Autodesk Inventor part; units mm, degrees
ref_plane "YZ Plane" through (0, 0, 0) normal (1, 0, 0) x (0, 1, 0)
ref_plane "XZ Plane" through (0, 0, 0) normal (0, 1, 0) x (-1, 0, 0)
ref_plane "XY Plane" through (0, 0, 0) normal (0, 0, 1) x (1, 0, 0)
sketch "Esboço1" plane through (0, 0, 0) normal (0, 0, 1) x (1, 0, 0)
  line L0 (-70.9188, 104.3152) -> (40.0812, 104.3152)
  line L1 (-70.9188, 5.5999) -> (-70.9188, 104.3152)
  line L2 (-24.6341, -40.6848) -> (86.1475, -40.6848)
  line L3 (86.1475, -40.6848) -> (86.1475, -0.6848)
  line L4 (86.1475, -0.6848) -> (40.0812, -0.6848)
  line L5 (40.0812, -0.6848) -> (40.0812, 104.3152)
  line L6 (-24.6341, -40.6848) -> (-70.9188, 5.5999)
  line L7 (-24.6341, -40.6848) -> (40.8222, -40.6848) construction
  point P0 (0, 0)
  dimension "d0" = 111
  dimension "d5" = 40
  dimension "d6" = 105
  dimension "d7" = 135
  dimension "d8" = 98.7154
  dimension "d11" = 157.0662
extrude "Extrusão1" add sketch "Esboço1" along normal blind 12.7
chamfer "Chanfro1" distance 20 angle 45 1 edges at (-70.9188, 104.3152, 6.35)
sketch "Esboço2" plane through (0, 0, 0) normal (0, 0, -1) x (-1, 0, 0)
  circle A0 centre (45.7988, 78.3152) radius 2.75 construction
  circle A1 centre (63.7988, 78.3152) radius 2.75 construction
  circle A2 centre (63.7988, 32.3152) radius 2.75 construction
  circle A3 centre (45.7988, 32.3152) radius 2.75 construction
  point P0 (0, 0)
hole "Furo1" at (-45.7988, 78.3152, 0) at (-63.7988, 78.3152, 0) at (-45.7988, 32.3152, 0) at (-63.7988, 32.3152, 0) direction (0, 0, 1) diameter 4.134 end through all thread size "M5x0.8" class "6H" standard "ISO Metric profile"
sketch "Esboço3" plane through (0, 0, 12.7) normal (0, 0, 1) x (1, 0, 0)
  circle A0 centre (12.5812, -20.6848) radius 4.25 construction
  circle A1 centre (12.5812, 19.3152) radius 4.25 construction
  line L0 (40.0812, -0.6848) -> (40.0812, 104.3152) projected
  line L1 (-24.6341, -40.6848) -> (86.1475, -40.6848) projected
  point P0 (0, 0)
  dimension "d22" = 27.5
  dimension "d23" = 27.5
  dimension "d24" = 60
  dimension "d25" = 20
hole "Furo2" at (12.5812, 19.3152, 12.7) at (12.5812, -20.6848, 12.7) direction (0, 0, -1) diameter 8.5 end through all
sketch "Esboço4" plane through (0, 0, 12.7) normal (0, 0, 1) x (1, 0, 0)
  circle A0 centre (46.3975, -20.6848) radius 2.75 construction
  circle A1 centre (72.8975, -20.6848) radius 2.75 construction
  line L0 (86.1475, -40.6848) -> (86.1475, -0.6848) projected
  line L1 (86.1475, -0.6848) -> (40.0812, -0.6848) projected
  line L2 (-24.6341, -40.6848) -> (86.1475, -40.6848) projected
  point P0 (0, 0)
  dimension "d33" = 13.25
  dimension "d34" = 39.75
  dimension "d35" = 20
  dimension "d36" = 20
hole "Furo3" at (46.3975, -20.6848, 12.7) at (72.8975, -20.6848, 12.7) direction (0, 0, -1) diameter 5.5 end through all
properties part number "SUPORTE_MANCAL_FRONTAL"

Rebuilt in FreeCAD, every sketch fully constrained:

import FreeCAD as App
import Part
import Sketcher
from FreeCAD import Vector
Q = App.Units.Quantity


def edges_at(feature, points):
    """Names of the edges that pass closest to the given points."""
    edges = feature.Shape.Edges
    near = lambda p: min(range(len(edges)), key=lambda i: edges[i].distToShape(Part.Vertex(*p))[0])
    return sorted({f"Edge{near(p) + 1}" for p in points})


def add_polygon(sketch, points):
    """Adds a closed chain of lines whose ends are joined by coincident constraints."""
    first, n = sketch.GeometryCount, len(points)
    for a, b in zip(points, points[1:] + points[:1]):
        sketch.addGeometry(Part.LineSegment(App.Vector(*a, 0), App.Vector(*b, 0)), False)
    for i in range(n):
        sketch.addConstraint(Sketcher.Constraint("Coincident", first + i, 2, first + (i + 1) % n, 1))

doc = App.newDocument("Part")
body = doc.addObject("PartDesign::Body", "Body")

sketch1 = doc.addObject("Sketcher::SketchObject", "Sketch")
body.addObject(sketch1)
sketch1.AttachmentSupport = (doc.XY_Plane, [""])
sketch1.MapMode = "FlatFace"
add_polygon(sketch1, [(40.0812, 104.3152), (-70.9188, 104.3152), (-70.9188, 5.5999), (-24.6341, -40.6848), (86.1475, -40.6848), (86.1475, -0.6848), (40.0812, -0.6848)])
sketch1.addConstraint([
    Sketcher.Constraint("Horizontal", 0),
    Sketcher.Constraint("Vertical", 1),
    Sketcher.Constraint("Horizontal", 3),
    Sketcher.Constraint("Vertical", 4),
    Sketcher.Constraint("Horizontal", 5),
    Sketcher.Constraint("Vertical", 6),
    Sketcher.Constraint("DistanceX", 0, 2, 0, 1, Q("111 mm")),
    Sketcher.Constraint("DistanceY", 4, 1, 4, 2, Q("40 mm")),
    Sketcher.Constraint("DistanceY", 6, 1, 6, 2, Q("105 mm")),
    Sketcher.Constraint("Angle", 2, Q("-45 deg")),
    Sketcher.Constraint("DistanceY", 1, 2, 1, 1, Q("98.7153 mm")),
    Sketcher.Constraint("DistanceY", -1, 1, 1, 2, Q("5.6 mm")),
    Sketcher.Constraint("DistanceX", 1, 2, 3, 2, Q("157.0663 mm")),
    Sketcher.Constraint("DistanceX", 2, 2, -1, 1, Q("24.634 mm")),
])
pad1 = doc.addObject("PartDesign::Pad", "Pad")
body.addObject(pad1)
pad1.Profile = sketch1
pad1.Length = 12.7
doc.recompute()

chamfer = doc.addObject("PartDesign::Chamfer", "Chamfer")
body.addObject(chamfer)
chamfer.Base = (pad1, edges_at(pad1, [(-70.919, 104.315, 6.35)]))
chamfer.Size = 20

sketch2 = doc.addObject("Sketcher::SketchObject", "Sketch001")
body.addObject(sketch2)
sketch2.AttachmentSupport = (doc.XY_Plane, [""])
sketch2.MapMode = "FlatFace"
sketch2.addGeometry([
    Part.Circle(Vector(-45.7988, 78.3152, 0), Vector(0, 0, 1), 2.067),
    Part.Circle(Vector(-63.7988, 78.3152, 0), Vector(0, 0, 1), 2.067),
    Part.Circle(Vector(-45.7988, 32.3152, 0), Vector(0, 0, 1), 2.067),
    Part.Circle(Vector(-63.7988, 32.3152, 0), Vector(0, 0, 1), 2.067),
], False)
sketch2.addConstraint([
    Sketcher.Constraint("Equal", 0, 1),
    Sketcher.Constraint("Equal", 1, 2),
    Sketcher.Constraint("Equal", 2, 3),
    Sketcher.Constraint("Horizontal", 0, 3, 1, 3),
    Sketcher.Constraint("Horizontal", 2, 3, 3, 3),
    Sketcher.Constraint("Vertical", 0, 3, 2, 3),
    Sketcher.Constraint("Vertical", 1, 3, 3, 3),
    Sketcher.Constraint("Diameter", 0, Q("4.134 mm")),
    Sketcher.Constraint("DistanceX", 1, 3, 0, 3, Q("18 mm")),
    Sketcher.Constraint("DistanceY", 2, 3, 0, 3, Q("46 mm")),
    Sketcher.Constraint("DistanceX", 0, 3, -1, 1, Q("45.7988 mm")),
    Sketcher.Constraint("DistanceY", -1, 1, 0, 3, Q("78.3152 mm")),
])
doc.recompute()
hole = doc.addObject("PartDesign::Hole", "Hole")
body.addObject(hole)
hole.Profile = sketch2
hole.ThreadType = "None"
hole.Diameter = 4.134
hole.DepthType = "ThroughAll"
hole.Reversed = True

sketch3 = doc.addObject("Sketcher::SketchObject", "Sketch002")
body.addObject(sketch3)
sketch3.AttachmentSupport = (doc.XY_Plane, [""])
sketch3.MapMode = "FlatFace"
sketch3.AttachmentOffset = App.Placement(Vector(0, 0, 12.7), App.Rotation())
sketch3.addGeometry([
    Part.Circle(Vector(12.5812, 19.3152, 0), Vector(0, 0, 1), 4.25),
    Part.Circle(Vector(12.5812, -20.6848, 0), Vector(0, 0, 1), 4.25),
], False)
sketch3.addConstraint([
    Sketcher.Constraint("Equal", 0, 1),
    Sketcher.Constraint("Vertical", 0, 3, 1, 3),
    Sketcher.Constraint("Diameter", 0, Q("8.5 mm")),
    Sketcher.Constraint("DistanceY", 1, 3, 0, 3, Q("40 mm")),
    Sketcher.Constraint("DistanceX", -1, 1, 0, 3, Q("12.5812 mm")),
    Sketcher.Constraint("DistanceY", -1, 1, 0, 3, Q("19.3152 mm")),
])
doc.recompute()
hole2 = doc.addObject("PartDesign::Hole", "Hole001")
body.addObject(hole2)
hole2.Profile = sketch3
hole2.ThreadType = "None"
hole2.Diameter = 8.5
hole2.DepthType = "ThroughAll"

sketch4 = doc.addObject("Sketcher::SketchObject", "Sketch003")
body.addObject(sketch4)
sketch4.AttachmentSupport = (doc.XY_Plane, [""])
sketch4.MapMode = "FlatFace"
sketch4.AttachmentOffset = App.Placement(Vector(0, 0, 12.7), App.Rotation())
sketch4.addGeometry([
    Part.Circle(Vector(46.3975, -20.6848, 0), Vector(0, 0, 1), 2.75),
    Part.Circle(Vector(72.8975, -20.6848, 0), Vector(0, 0, 1), 2.75),
], False)
sketch4.addConstraint([
    Sketcher.Constraint("Equal", 0, 1),
    Sketcher.Constraint("Horizontal", 0, 3, 1, 3),
    Sketcher.Constraint("Diameter", 0, Q("5.5 mm")),
    Sketcher.Constraint("DistanceX", 0, 3, 1, 3, Q("26.5 mm")),
    Sketcher.Constraint("DistanceX", -1, 1, 0, 3, Q("46.3975 mm")),
    Sketcher.Constraint("DistanceY", 0, 3, -1, 1, Q("20.6848 mm")),
])
doc.recompute()
hole3 = doc.addObject("PartDesign::Hole", "Hole002")
body.addObject(hole3)
hole3.Profile = sketch4
hole3.ThreadType = "None"
hole3.Diameter = 5.5
hole3.DepthType = "ThroughAll"

doc.recompute()
